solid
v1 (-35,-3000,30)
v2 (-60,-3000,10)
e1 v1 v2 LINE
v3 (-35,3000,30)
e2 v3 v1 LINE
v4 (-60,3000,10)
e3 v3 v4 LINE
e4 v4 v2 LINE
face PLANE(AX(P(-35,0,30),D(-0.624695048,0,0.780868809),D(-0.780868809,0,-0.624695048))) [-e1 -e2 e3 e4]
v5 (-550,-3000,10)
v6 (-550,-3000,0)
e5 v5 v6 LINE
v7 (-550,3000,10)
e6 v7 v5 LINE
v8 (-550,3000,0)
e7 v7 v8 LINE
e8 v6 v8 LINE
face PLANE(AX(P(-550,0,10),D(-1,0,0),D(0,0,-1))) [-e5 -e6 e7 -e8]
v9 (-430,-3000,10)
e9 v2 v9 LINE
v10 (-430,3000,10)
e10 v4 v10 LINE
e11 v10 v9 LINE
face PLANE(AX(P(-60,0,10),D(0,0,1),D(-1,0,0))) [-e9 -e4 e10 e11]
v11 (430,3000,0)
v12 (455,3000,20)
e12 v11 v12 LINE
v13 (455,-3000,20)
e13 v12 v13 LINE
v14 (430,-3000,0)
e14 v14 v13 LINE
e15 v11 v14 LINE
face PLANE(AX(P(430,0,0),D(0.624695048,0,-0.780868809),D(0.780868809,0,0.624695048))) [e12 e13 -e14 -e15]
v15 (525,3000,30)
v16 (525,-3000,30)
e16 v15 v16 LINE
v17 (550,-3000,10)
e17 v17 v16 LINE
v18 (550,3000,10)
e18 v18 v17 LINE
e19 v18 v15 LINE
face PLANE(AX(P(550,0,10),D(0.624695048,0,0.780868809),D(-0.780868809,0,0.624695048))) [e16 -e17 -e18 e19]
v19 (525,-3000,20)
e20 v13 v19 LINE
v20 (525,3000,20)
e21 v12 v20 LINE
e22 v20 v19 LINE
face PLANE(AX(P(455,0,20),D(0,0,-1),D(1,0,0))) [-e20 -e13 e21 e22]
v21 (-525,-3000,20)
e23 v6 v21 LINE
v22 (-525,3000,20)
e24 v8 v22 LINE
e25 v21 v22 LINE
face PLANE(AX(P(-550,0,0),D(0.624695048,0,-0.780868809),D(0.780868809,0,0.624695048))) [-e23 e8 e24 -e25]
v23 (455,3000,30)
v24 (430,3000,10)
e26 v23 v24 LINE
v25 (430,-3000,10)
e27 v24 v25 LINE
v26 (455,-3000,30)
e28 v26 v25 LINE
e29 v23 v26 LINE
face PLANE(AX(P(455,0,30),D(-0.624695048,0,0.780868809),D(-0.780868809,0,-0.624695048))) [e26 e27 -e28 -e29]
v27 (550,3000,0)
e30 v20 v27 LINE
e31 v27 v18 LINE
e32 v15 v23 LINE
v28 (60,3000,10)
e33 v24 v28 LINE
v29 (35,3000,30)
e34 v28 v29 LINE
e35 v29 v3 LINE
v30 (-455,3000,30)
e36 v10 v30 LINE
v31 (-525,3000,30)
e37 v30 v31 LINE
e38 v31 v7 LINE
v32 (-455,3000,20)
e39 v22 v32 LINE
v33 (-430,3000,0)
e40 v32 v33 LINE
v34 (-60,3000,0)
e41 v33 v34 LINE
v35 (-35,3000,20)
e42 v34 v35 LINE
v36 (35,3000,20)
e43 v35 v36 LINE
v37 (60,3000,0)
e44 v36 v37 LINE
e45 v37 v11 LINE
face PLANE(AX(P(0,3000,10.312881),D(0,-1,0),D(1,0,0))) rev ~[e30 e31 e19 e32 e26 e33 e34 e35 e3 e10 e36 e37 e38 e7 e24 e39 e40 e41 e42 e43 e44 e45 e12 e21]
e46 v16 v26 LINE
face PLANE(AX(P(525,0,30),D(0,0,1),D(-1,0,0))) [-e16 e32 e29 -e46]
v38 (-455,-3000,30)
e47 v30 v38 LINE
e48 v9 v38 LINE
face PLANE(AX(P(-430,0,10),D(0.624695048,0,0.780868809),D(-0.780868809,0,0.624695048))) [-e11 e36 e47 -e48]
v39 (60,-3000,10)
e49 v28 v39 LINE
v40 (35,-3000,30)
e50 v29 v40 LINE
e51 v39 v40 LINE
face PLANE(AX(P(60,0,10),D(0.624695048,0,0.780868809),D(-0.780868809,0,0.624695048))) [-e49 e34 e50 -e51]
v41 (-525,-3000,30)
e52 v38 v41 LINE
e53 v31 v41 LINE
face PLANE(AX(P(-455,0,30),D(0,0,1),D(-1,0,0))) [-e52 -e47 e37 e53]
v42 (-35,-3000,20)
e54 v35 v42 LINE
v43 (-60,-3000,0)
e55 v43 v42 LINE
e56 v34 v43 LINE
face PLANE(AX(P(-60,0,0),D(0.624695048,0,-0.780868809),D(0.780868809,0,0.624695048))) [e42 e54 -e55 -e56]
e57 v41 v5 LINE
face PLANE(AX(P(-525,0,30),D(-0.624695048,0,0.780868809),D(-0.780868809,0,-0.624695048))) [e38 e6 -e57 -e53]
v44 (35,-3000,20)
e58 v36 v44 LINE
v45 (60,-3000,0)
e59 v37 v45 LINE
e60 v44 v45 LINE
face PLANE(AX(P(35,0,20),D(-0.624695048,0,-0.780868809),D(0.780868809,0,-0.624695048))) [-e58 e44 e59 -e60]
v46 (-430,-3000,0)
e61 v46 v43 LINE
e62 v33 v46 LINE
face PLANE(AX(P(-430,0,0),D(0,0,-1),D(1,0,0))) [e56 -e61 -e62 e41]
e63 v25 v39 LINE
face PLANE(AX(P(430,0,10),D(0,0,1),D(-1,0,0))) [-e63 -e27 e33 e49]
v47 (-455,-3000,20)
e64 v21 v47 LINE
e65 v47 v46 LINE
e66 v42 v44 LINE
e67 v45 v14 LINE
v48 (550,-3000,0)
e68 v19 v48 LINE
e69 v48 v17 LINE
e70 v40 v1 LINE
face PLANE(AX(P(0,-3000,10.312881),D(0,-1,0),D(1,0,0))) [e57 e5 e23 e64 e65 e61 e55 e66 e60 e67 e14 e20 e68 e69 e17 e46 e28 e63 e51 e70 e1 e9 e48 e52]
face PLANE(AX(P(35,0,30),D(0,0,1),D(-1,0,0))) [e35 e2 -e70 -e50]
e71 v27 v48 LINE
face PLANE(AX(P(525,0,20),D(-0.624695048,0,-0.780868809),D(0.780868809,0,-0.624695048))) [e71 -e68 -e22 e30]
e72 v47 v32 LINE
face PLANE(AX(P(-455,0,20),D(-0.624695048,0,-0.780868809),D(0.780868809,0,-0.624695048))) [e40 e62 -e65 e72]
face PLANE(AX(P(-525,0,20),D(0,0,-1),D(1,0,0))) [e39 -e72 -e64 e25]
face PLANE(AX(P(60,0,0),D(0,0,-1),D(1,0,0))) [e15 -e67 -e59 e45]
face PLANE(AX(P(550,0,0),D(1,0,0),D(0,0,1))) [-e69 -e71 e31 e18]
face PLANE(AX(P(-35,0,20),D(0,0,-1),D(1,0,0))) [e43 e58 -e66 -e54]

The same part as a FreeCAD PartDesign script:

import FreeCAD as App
import Part
import Sketcher

doc = App.newDocument("Part")
params = doc.addObject("Spreadsheet::Sheet", "Params")
for row, (alias, value) in enumerate([
    ("sketch1_width", "370 mm"),
    ("sketch1_width2", "70 mm"),
    ("sketch1_height", "10 mm"),
    ("pad1_length", "6000 mm"),
], start=1):
    params.set(f"A{row}", alias)
    params.set(f"B{row}", "=" + value)
    params.setAlias(f"B{row}", alias)

body = doc.addObject("PartDesign::Body", "Body")

sketch1 = body.newObject("Sketcher::SketchObject", "Sketch")
sketch1.AttachmentSupport = (doc.getObject("XZ_Plane"), [""])
sketch1.MapMode = "FlatFace"
sketch1.addGeometry([
    Part.LineSegment(App.Vector(-455, 20, 0), App.Vector(-430, 0, 0)),
    Part.LineSegment(App.Vector(-430, 0, 0), App.Vector(-60, 0, 0)),
    Part.LineSegment(App.Vector(-60, 0, 0), App.Vector(-35, 20, 0)),
    Part.LineSegment(App.Vector(-35, 20, 0), App.Vector(35, 20, 0)),
    Part.LineSegment(App.Vector(35, 20, 0), App.Vector(60, 0, 0)),
    Part.LineSegment(App.Vector(60, 0, 0), App.Vector(430, 0, 0)),
    Part.LineSegment(App.Vector(430, 0, 0), App.Vector(455, 20, 0)),
    Part.LineSegment(App.Vector(455, 20, 0), App.Vector(525, 20, 0)),
    Part.LineSegment(App.Vector(525, 20, 0), App.Vector(550, 0, 0)),
    Part.LineSegment(App.Vector(550, 0, 0), App.Vector(550, 10, 0)),
    Part.LineSegment(App.Vector(550, 10, 0), App.Vector(525, 30, 0)),
    Part.LineSegment(App.Vector(525, 30, 0), App.Vector(455, 30, 0)),
    Part.LineSegment(App.Vector(455, 30, 0), App.Vector(430, 10, 0)),
    Part.LineSegment(App.Vector(430, 10, 0), App.Vector(60, 10, 0)),
    Part.LineSegment(App.Vector(60, 10, 0), App.Vector(35, 30, 0)),
    Part.LineSegment(App.Vector(35, 30, 0), App.Vector(-35, 30, 0)),
    Part.LineSegment(App.Vector(-35, 30, 0), App.Vector(-60, 10, 0)),
    Part.LineSegment(App.Vector(-60, 10, 0), App.Vector(-430, 10, 0)),
    Part.LineSegment(App.Vector(-430, 10, 0), App.Vector(-455, 30, 0)),
    Part.LineSegment(App.Vector(-455, 30, 0), App.Vector(-525, 30, 0)),
    Part.LineSegment(App.Vector(-525, 30, 0), App.Vector(-550, 10, 0)),
    Part.LineSegment(App.Vector(-550, 10, 0), App.Vector(-550, 0, 0)),
    Part.LineSegment(App.Vector(-550, 0, 0), App.Vector(-525, 20, 0)),
    Part.LineSegment(App.Vector(-525, 20, 0), App.Vector(-455, 20, 0)),
], False)
sketch1.addConstraint([
    Sketcher.Constraint("Coincident", 0, 2, 1, 1),
    Sketcher.Constraint("Coincident", 1, 2, 2, 1),
    Sketcher.Constraint("Coincident", 2, 2, 3, 1),
    Sketcher.Constraint("Coincident", 3, 2, 4, 1),
    Sketcher.Constraint("Coincident", 4, 2, 5, 1),
    Sketcher.Constraint("Coincident", 5, 2, 6, 1),
    Sketcher.Constraint("Coincident", 6, 2, 7, 1),
    Sketcher.Constraint("Coincident", 7, 2, 8, 1),
    Sketcher.Constraint("Coincident", 8, 2, 9, 1),
    Sketcher.Constraint("Coincident", 9, 2, 10, 1),
    Sketcher.Constraint("Coincident", 10, 2, 11, 1),
    Sketcher.Constraint("Coincident", 11, 2, 12, 1),
    Sketcher.Constraint("Coincident", 12, 2, 13, 1),
    Sketcher.Constraint("Coincident", 13, 2, 14, 1),
    Sketcher.Constraint("Coincident", 14, 2, 15, 1),
    Sketcher.Constraint("Coincident", 15, 2, 16, 1),
    Sketcher.Constraint("Coincident", 16, 2, 17, 1),
    Sketcher.Constraint("Coincident", 17, 2, 18, 1),
    Sketcher.Constraint("Coincident", 18, 2, 19, 1),
    Sketcher.Constraint("Coincident", 19, 2, 20, 1),
    Sketcher.Constraint("Coincident", 20, 2, 21, 1),
    Sketcher.Constraint("Coincident", 21, 2, 22, 1),
    Sketcher.Constraint("Coincident", 22, 2, 23, 1),
    Sketcher.Constraint("Coincident", 23, 2, 0, 1),
    Sketcher.Constraint("Horizontal", 1),
    Sketcher.Constraint("Horizontal", 3),
    Sketcher.Constraint("Horizontal", 5),
    Sketcher.Constraint("Horizontal", 7),
    Sketcher.Constraint("Vertical", 9),
    Sketcher.Constraint("Horizontal", 11),
    Sketcher.Constraint("Horizontal", 13),
    Sketcher.Constraint("Horizontal", 15),
    Sketcher.Constraint("Horizontal", 17),
    Sketcher.Constraint("Horizontal", 19),
    Sketcher.Constraint("Vertical", 21),
    Sketcher.Constraint("Horizontal", 23),
    Sketcher.Constraint("Symmetric", 1, 2, 4, 2, -1, 1),
    Sketcher.Constraint("Symmetric", 8, 2, 21, 2, -1, 1),
    Sketcher.Constraint("Symmetric", 0, 2, 5, 2, -2),
    Sketcher.Constraint("Symmetric", 13, 2, 16, 2, -2),
    Sketcher.Constraint("Symmetric", 11, 2, 18, 2, -2),
    Sketcher.Constraint("Symmetric", 7, 2, 22, 2, -2),
    Sketcher.Constraint("PointOnObject", 8, 2, -1),
    Sketcher.Constraint("Parallel", 0, 4),
    Sketcher.Constraint("Parallel", 2, 6),
    Sketcher.Constraint("Parallel", 4, 8),
    Sketcher.Constraint("Parallel", 8, 10),
    Sketcher.Constraint("Parallel", 6, 12),
    Sketcher.Constraint("Parallel", 10, 14),
    Sketcher.Constraint("Parallel", 12, 16),
    Sketcher.Constraint("Parallel", 14, 18),
    Sketcher.Constraint("Parallel", 16, 20),
    Sketcher.Constraint("Parallel", 20, 22),
    Sketcher.Constraint("Horizontal", 3, 2, 6, 2),
    Sketcher.Constraint("Horizontal", 9, 2, 12, 2),
    Sketcher.Constraint("Horizontal", 11, 2, 14, 2),
    Sketcher.Constraint("Horizontal", 17, 2, 20, 2),
    Sketcher.Constraint("Vertical", 7, 2, 10, 2),
    Sketcher.Constraint("Vertical", 6, 2, 11, 2),
    Sketcher.Constraint("Vertical", 4, 2, 13, 2),
    Sketcher.Constraint("Equal", 3, 7),
    Sketcher.Constraint("DistanceX", 1, 1, 1, 2, 370.0),
    Sketcher.Constraint("DistanceX", 3, 1, 3, 2, 70.0),
    Sketcher.Constraint("DistanceY", 9, 1, 9, 2, 10.0),
    Sketcher.Constraint("DistanceX", 0, 2, -1, 1, 430.0),
    Sketcher.Constraint("DistanceY", -1, 1, 2, 2, 20.0),
])
sketch1.setExpression("Constraints[61]", "Params.sketch1_width")
sketch1.setExpression("Constraints[62]", "Params.sketch1_width2")
sketch1.setExpression("Constraints[63]", "Params.sketch1_height")
pad1 = body.newObject("PartDesign::Pad", "Pad")
pad1.Profile = sketch1
pad1.setExpression("Length", "Params.pad1_length")
pad1.Midplane = True

doc.recompute()
